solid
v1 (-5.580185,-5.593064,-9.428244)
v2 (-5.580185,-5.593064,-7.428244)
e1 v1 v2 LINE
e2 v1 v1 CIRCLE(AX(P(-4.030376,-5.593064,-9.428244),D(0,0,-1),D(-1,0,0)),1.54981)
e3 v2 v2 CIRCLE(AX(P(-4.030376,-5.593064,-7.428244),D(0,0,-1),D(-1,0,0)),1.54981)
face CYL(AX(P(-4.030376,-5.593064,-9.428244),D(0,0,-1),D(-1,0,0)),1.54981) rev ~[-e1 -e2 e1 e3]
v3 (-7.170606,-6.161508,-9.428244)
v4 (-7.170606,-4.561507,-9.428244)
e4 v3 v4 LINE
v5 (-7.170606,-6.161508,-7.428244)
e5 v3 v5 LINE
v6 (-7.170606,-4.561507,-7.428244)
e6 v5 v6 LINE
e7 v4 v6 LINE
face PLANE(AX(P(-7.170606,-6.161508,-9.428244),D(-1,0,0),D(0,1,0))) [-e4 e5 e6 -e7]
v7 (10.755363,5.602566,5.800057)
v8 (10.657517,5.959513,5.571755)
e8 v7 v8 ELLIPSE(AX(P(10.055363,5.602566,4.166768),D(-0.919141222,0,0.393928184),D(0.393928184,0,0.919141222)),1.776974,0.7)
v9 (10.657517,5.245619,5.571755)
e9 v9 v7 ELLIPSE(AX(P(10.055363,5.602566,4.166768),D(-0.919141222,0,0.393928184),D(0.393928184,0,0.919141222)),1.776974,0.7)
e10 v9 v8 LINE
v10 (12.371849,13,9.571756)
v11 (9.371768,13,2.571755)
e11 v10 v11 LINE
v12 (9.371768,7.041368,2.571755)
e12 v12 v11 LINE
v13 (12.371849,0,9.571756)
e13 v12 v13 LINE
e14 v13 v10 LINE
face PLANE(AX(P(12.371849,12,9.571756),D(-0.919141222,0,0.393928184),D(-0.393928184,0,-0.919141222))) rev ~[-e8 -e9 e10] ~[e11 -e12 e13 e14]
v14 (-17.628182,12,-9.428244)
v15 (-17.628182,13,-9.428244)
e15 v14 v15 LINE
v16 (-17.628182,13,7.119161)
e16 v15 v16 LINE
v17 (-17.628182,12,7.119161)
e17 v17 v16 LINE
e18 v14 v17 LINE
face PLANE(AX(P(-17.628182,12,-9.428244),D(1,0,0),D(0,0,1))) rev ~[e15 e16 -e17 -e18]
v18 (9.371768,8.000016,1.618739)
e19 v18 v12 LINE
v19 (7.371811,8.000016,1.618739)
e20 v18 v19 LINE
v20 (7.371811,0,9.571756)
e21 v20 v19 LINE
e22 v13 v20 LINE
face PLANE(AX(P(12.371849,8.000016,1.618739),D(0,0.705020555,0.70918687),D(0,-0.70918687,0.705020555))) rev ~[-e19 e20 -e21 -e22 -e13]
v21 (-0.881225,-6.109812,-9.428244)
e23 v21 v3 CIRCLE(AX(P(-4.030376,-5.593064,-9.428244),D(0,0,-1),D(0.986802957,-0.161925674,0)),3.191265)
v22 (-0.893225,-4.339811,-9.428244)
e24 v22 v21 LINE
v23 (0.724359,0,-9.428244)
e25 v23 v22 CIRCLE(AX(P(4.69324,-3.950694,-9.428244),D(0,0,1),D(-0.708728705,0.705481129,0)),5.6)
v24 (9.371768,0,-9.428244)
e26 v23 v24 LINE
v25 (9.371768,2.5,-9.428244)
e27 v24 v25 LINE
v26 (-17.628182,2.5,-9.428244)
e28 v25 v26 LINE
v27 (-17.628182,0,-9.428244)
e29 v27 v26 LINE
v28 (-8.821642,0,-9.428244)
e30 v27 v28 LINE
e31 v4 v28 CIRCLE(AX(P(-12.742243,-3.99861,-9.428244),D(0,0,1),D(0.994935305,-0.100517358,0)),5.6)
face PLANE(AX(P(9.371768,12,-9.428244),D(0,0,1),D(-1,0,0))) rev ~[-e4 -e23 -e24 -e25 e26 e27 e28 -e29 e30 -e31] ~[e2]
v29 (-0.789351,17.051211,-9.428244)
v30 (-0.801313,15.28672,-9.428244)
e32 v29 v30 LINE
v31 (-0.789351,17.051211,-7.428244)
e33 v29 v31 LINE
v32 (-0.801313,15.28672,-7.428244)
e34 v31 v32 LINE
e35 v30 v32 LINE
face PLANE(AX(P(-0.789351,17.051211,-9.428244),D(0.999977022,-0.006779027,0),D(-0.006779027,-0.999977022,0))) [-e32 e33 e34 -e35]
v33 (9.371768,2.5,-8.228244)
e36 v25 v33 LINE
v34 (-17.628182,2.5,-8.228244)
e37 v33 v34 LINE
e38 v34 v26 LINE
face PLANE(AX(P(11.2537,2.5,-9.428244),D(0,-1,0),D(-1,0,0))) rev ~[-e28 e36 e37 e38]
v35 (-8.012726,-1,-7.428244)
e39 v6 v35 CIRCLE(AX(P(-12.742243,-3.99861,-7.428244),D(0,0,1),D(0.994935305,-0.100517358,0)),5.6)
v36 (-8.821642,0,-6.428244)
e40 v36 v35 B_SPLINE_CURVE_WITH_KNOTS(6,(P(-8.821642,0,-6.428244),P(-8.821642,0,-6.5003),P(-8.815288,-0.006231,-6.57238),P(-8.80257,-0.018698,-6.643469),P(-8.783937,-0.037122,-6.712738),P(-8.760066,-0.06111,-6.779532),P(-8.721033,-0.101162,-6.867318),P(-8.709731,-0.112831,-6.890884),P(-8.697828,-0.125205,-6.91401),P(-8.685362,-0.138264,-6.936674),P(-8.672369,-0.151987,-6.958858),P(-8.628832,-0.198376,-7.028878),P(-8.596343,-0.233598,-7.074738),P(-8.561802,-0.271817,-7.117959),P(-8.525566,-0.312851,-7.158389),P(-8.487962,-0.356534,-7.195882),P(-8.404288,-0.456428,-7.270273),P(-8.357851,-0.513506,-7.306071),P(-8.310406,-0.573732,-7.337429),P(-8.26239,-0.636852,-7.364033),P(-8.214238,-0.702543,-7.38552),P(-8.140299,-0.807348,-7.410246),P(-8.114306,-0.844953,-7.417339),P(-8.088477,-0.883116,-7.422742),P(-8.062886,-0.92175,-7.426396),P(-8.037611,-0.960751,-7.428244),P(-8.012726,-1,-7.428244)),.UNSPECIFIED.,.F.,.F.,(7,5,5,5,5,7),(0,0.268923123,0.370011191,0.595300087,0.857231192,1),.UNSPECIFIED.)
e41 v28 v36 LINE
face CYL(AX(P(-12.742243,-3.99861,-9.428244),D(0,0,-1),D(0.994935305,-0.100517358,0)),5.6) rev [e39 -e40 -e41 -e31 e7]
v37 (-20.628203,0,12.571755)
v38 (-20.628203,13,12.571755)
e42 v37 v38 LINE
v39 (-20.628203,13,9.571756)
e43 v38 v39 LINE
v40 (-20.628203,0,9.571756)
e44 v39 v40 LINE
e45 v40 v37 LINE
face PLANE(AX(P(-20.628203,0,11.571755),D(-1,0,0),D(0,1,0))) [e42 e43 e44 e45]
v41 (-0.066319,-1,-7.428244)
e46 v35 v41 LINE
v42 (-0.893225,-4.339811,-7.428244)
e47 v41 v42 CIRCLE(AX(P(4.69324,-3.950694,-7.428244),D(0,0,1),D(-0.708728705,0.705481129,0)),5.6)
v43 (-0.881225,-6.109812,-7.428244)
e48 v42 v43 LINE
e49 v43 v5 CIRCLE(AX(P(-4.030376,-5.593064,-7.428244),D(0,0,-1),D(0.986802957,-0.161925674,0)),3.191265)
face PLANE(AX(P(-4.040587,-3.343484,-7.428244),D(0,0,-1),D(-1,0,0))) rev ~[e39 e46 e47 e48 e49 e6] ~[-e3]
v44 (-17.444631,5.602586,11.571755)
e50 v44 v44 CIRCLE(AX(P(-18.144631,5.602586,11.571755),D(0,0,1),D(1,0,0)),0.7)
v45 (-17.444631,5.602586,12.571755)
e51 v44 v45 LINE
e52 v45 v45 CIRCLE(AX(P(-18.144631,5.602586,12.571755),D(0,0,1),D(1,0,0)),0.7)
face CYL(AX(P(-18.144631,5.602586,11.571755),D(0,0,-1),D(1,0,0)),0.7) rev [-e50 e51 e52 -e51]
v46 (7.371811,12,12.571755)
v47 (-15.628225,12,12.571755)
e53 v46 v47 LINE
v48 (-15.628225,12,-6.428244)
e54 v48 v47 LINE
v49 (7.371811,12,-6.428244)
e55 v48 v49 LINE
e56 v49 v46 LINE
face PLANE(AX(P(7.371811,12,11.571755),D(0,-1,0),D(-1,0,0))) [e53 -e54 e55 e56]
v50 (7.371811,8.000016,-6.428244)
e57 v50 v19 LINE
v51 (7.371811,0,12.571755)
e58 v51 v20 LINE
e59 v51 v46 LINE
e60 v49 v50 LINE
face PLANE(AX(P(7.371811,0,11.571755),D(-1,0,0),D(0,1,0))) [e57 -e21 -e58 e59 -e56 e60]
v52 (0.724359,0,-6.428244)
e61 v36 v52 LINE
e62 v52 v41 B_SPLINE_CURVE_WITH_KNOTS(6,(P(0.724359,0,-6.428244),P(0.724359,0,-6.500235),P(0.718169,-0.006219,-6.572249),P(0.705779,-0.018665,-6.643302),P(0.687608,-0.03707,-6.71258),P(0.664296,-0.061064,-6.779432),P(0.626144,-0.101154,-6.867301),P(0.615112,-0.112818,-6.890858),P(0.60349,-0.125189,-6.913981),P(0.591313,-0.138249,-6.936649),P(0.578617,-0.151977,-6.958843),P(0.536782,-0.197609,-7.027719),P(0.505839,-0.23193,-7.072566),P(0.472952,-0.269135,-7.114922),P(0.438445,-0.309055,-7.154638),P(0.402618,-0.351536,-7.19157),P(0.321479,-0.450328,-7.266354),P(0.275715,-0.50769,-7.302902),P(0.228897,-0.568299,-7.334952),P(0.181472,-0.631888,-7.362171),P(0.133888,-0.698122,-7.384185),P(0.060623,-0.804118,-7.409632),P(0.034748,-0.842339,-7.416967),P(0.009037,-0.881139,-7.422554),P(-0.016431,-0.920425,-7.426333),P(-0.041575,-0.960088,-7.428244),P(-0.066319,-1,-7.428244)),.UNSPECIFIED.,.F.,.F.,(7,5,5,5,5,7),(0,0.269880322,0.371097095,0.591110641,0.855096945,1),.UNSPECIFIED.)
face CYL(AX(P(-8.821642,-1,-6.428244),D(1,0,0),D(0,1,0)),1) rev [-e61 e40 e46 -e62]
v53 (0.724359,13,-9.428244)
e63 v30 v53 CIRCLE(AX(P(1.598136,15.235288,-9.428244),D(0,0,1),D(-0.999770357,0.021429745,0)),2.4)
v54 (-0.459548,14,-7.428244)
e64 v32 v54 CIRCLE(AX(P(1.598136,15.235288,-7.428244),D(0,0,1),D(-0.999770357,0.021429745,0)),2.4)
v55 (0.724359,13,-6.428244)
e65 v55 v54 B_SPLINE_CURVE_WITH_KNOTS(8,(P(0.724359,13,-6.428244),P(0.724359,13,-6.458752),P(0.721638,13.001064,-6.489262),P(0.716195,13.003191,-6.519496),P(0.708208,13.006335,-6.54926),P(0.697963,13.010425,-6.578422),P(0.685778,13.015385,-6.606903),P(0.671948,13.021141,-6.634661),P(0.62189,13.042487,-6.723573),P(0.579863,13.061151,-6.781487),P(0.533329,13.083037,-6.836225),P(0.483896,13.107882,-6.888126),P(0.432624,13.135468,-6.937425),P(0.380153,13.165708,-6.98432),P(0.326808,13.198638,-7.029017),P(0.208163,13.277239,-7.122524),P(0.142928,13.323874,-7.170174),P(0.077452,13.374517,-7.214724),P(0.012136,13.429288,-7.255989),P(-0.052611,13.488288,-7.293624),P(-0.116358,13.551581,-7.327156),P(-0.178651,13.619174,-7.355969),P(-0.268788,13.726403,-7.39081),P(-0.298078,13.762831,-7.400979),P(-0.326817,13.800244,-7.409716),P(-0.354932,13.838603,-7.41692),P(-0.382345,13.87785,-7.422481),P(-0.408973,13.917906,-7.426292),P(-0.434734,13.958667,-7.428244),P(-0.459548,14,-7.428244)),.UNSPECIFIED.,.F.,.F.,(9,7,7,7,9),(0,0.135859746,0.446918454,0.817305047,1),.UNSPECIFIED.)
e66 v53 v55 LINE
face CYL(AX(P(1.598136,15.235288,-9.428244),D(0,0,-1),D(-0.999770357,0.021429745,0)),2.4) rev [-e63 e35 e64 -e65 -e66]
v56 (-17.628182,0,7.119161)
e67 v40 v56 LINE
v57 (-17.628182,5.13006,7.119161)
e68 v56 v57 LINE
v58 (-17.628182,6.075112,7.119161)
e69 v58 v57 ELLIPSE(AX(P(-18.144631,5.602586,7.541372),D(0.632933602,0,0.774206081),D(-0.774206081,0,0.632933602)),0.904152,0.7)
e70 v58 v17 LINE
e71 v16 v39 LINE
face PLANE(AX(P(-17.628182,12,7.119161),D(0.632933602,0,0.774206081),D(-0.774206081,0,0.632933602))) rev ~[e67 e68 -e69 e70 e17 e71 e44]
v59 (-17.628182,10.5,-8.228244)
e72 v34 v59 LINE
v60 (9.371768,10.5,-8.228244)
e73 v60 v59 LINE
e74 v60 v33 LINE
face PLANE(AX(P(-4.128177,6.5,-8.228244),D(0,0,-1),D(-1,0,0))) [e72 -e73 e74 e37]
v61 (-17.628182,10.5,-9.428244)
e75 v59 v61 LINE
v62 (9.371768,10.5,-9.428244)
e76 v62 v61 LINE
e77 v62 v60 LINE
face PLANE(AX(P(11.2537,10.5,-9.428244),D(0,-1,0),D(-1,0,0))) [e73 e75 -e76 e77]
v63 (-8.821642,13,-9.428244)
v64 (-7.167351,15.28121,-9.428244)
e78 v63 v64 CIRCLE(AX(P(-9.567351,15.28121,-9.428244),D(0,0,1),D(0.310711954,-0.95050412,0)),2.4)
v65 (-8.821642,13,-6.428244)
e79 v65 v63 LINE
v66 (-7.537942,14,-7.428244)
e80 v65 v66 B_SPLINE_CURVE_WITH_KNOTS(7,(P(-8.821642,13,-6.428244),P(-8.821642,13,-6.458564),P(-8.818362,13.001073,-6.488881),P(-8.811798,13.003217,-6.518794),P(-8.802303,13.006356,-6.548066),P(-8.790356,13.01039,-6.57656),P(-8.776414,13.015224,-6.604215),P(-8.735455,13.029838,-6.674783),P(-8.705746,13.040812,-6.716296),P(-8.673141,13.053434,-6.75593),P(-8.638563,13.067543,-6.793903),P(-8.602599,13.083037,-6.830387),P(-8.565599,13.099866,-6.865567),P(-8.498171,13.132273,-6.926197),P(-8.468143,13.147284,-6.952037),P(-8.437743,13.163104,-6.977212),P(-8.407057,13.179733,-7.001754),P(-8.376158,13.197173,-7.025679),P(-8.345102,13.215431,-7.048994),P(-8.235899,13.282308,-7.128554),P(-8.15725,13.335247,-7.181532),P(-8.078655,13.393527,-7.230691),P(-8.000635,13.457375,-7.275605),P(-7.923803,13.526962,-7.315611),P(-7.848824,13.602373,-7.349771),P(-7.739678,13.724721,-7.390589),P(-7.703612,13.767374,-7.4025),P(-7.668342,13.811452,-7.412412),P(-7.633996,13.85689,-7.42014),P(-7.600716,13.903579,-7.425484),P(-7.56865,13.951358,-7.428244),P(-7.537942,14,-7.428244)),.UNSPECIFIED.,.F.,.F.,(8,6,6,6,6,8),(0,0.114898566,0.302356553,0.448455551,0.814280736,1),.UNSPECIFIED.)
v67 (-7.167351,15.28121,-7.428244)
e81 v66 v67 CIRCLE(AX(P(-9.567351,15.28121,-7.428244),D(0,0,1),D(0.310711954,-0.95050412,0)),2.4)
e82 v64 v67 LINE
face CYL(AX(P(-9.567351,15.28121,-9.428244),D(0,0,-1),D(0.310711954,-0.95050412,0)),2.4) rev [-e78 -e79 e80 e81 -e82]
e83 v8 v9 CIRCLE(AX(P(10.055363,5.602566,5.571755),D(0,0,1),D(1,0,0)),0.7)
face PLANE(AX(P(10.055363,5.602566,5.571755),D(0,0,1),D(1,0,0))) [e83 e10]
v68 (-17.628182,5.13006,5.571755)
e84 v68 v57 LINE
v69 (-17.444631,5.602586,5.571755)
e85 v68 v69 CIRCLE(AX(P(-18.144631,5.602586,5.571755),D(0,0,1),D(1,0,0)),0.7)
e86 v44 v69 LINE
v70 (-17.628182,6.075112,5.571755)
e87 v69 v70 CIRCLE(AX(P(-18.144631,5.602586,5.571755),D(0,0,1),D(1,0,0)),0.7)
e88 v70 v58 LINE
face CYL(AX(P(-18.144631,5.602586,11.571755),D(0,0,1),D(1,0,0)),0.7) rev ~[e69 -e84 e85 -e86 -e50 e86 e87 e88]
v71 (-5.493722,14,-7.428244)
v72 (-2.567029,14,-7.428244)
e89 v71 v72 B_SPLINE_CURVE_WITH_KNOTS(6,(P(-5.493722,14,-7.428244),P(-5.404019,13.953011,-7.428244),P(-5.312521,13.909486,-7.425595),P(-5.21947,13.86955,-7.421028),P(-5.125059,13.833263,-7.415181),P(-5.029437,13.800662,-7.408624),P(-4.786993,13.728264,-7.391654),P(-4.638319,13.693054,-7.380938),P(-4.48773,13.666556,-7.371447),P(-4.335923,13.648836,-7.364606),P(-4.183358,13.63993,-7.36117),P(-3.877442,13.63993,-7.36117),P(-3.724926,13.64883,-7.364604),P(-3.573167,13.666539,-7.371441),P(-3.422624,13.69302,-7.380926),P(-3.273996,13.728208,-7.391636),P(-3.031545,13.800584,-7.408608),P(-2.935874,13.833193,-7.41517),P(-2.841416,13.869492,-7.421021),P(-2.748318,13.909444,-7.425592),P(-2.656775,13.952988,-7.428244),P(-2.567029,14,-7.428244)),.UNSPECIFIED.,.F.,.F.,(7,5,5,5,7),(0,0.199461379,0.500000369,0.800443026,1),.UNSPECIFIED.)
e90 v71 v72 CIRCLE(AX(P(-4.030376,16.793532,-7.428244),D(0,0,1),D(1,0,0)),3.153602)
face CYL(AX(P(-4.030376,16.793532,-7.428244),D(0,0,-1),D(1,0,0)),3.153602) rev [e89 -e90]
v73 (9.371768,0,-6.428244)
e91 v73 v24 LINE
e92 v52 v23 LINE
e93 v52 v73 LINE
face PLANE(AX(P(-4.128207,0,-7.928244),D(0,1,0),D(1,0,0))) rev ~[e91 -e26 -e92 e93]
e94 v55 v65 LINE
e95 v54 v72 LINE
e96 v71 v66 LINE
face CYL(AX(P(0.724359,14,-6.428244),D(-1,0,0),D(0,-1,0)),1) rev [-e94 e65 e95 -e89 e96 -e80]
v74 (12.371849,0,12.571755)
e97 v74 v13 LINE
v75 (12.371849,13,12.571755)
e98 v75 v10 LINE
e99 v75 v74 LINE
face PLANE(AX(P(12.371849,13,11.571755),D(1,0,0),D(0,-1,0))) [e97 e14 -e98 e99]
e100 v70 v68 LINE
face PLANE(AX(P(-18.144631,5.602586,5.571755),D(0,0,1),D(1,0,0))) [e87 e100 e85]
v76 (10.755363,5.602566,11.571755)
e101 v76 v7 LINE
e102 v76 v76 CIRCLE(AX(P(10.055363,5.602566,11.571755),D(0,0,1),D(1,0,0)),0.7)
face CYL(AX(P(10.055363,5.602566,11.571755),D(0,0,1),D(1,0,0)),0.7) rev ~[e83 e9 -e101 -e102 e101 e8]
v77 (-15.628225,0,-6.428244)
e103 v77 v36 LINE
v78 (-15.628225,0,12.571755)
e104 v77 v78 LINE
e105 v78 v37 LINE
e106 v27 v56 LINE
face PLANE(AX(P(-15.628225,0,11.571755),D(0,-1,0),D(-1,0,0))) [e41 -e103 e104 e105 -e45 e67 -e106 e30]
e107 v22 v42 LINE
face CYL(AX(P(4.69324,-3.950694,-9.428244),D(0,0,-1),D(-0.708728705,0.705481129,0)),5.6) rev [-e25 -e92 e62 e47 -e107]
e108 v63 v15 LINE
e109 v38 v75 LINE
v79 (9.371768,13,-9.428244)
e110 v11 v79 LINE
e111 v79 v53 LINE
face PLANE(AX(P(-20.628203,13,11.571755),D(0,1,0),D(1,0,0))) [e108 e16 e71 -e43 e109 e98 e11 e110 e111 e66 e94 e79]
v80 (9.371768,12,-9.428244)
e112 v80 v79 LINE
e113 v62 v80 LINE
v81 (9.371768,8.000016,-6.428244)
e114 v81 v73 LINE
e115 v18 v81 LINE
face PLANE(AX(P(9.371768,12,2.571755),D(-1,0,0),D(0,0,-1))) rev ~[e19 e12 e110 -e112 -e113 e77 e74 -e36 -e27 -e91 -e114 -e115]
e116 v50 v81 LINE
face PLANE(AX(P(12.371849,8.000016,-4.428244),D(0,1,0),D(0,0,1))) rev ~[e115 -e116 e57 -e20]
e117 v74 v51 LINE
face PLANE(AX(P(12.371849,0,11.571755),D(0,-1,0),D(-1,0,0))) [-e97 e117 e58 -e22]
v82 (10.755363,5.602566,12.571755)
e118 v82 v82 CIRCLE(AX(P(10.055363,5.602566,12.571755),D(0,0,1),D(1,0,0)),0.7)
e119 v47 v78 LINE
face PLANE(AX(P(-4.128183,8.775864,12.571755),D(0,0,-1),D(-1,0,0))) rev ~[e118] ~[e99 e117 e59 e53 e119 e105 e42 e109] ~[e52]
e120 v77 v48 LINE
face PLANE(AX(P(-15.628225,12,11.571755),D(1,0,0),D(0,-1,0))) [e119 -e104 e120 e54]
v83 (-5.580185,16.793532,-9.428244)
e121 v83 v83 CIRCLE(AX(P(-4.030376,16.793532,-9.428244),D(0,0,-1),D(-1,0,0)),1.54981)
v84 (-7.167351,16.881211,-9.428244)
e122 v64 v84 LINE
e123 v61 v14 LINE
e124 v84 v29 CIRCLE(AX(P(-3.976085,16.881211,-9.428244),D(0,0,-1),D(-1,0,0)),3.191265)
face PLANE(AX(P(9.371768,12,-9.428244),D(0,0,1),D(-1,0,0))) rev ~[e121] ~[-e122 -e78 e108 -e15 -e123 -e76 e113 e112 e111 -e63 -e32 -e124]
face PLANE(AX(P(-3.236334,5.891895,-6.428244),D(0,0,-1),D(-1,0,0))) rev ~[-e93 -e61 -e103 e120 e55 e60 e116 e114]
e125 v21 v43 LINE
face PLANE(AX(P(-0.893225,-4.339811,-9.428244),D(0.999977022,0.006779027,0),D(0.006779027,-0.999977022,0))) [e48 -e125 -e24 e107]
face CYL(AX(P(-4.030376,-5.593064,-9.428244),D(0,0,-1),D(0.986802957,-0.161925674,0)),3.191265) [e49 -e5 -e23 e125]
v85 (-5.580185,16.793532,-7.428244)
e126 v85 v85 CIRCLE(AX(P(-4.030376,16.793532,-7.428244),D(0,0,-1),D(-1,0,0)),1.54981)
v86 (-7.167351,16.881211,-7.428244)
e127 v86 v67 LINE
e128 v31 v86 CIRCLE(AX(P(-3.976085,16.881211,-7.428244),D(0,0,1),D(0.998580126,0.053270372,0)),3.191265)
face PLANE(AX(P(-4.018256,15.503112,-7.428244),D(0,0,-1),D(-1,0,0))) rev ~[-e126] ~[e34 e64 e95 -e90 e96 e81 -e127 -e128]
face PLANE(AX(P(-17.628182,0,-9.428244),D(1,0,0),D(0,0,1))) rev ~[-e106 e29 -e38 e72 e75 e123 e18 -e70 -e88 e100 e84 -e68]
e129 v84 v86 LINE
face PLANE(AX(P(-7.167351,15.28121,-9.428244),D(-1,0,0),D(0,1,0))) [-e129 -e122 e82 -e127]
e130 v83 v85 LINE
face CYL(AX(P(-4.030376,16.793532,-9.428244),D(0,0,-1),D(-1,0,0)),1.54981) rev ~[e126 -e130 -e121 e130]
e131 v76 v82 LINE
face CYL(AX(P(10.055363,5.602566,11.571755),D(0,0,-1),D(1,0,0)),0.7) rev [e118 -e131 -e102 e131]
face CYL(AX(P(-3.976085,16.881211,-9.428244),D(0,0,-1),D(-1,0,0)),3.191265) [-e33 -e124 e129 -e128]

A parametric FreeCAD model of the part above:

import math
import FreeCAD as App
import Part
import Sketcher
from FreeCAD import Vector
Q = App.Units.Quantity


def edges_at(feature, points):
    """Names of the edges that pass closest to the given points."""
    edges = feature.Shape.Edges
    near = lambda p: min(range(len(edges)), key=lambda i: edges[i].distToShape(Part.Vertex(*p))[0])
    return sorted({f"Edge{near(p) + 1}" for p in points})

doc = App.newDocument("Part")
body = doc.addObject("PartDesign::Body", "Body")

# Sketch on XZ plane
sketch1 = body.newObject("Sketcher::SketchObject", "Sketch")
sketch1.AttachmentSupport = (doc.getObject("XZ_Plane"), [""])
sketch1.MapMode = "FlatFace"
sketch1.addGeometry(Part.LineSegment(Vector(-17.628182, -9.428244, 0), Vector(-17.628182, 7.119161, 0)), False)
sketch1.addGeometry(Part.LineSegment(Vector(-17.628182, 7.119161, 0), Vector(-20.628203, 9.571756, 0)), False)
sketch1.addGeometry(Part.LineSegment(Vector(-20.628203, 9.571756, 0), Vector(-20.628203, 11.571755, 0)), False)
sketch1.addGeometry(Part.LineSegment(Vector(-20.628203, 11.571755, 0), Vector(-15.628225, 11.571755, 0)), False)
sketch1.addGeometry(Part.LineSegment(Vector(-15.628225, 11.571755, 0), Vector(-15.628225, -4.428244, 0)), False)
sketch1.addGeometry(Part.LineSegment(Vector(-15.628225, -4.428244, 0), Vector(7.371811, -4.428244, 0)), False)
sketch1.addGeometry(Part.LineSegment(Vector(7.371811, -4.428244, 0), Vector(7.371811, 11.571755, 0)), False)
sketch1.addGeometry(Part.LineSegment(Vector(7.371811, 11.571755, 0), Vector(12.371849, 11.571755, 0)), False)
sketch1.addGeometry(Part.LineSegment(Vector(12.371849, 11.571755, 0), Vector(12.371849, 9.571756, 0)), False)
sketch1.addGeometry(Part.LineSegment(Vector(12.371849, 9.571756, 0), Vector(9.371768, 2.571755, 0)), False)
sketch1.addGeometry(Part.LineSegment(Vector(9.371768, 2.571755, 0), Vector(9.371768, -6.428244, 0)), False)
sketch1.addGeometry(Part.LineSegment(Vector(9.371768, -6.428244, 0), Vector(9.371768, -9.428244, 0)), False)
sketch1.addGeometry(Part.LineSegment(Vector(9.371768, -9.428244, 0), Vector(-17.628182, -9.428244, 0)), False)
sketch1.addConstraint(Sketcher.Constraint("Coincident", 0, 2, 1, 1))
sketch1.addConstraint(Sketcher.Constraint("Coincident", 1, 2, 2, 1))
sketch1.addConstraint(Sketcher.Constraint("Coincident", 2, 2, 3, 1))
sketch1.addConstraint(Sketcher.Constraint("Coincident", 3, 2, 4, 1))
sketch1.addConstraint(Sketcher.Constraint("Coincident", 4, 2, 5, 1))
sketch1.addConstraint(Sketcher.Constraint("Coincident", 5, 2, 6, 1))
sketch1.addConstraint(Sketcher.Constraint("Coincident", 6, 2, 7, 1))
sketch1.addConstraint(Sketcher.Constraint("Coincident", 7, 2, 8, 1))
sketch1.addConstraint(Sketcher.Constraint("Coincident", 8, 2, 9, 1))
sketch1.addConstraint(Sketcher.Constraint("Coincident", 9, 2, 10, 1))
sketch1.addConstraint(Sketcher.Constraint("Coincident", 10, 2, 11, 1))
sketch1.addConstraint(Sketcher.Constraint("Coincident", 11, 2, 12, 1))
sketch1.addConstraint(Sketcher.Constraint("Coincident", 12, 2, 0, 1))
sketch1.addConstraint(Sketcher.Constraint("Vertical", 0))
sketch1.addConstraint(Sketcher.Constraint("Vertical", 2))
sketch1.addConstraint(Sketcher.Constraint("Horizontal", 3))
sketch1.addConstraint(Sketcher.Constraint("Vertical", 4))
sketch1.addConstraint(Sketcher.Constraint("Horizontal", 5))
sketch1.addConstraint(Sketcher.Constraint("Vertical", 6))
sketch1.addConstraint(Sketcher.Constraint("Horizontal", 7))
sketch1.addConstraint(Sketcher.Constraint("Vertical", 8))
sketch1.addConstraint(Sketcher.Constraint("Vertical", 10))
sketch1.addConstraint(Sketcher.Constraint("Vertical", 11))
sketch1.addConstraint(Sketcher.Constraint("Horizontal", 12))
sketch1.addConstraint(Sketcher.Constraint("Horizontal", 3, 2, 6, 2))
sketch1.addConstraint(Sketcher.Constraint("Horizontal", 1, 2, 8, 2))
sketch1.addConstraint(Sketcher.Constraint("DistanceY", 2, 1, 2, 2, Q("1.999998 mm")))
sketch1.addConstraint(Sketcher.Constraint("DistanceY", 4, 2, 4, 1, Q("15.999999 mm")))
sketch1.addConstraint(Sketcher.Constraint("DistanceY", 10, 2, 10, 1, Q("9 mm")))
sketch1.addConstraint(Sketcher.Constraint("DistanceY", 11, 2, 11, 1, Q("3 mm")))
sketch1.addConstraint(Sketcher.Constraint("DistanceY", 5, 2, 9, 2, Q("7 mm")))
sketch1.addConstraint(Sketcher.Constraint("DistanceX", 3, 1, 3, 2, Q("4.999979 mm")))
sketch1.addConstraint(Sketcher.Constraint("DistanceX", 7, 1, 7, 2, Q("5.000038 mm")))
sketch1.addConstraint(Sketcher.Constraint("DistanceX", 12, 2, 12, 1, Q("26.99995 mm")))
sketch1.addConstraint(Sketcher.Constraint("DistanceX", 5, 1, 5, 2, Q("23.000035 mm")))
sketch1.addConstraint(Sketcher.Constraint("DistanceY", 0, 1, 0, 2, Q("16.547406 mm")))
sketch1.addConstraint(Sketcher.Constraint("DistanceY", -1, 1, 0, 2, Q("7.119161 mm")))
sketch1.addConstraint(Sketcher.Constraint("DistanceX", -1, 1, 5, 2, Q("7.371811 mm")))
sketch1.addConstraint(Sketcher.Constraint("DistanceX", -1, 1, 9, 2, Q("9.371768 mm")))
pad1 = body.newObject("PartDesign::Pad", "Pad")
pad1.Profile = sketch1
pad1.Length = 12
pad1.Reversed = True

# Sketch on YZ plane
sketch2 = body.newObject("Sketcher::SketchObject", "Sketch001")
sketch2.AttachmentSupport = (doc.getObject("YZ_Plane"), [""])
sketch2.MapMode = "FlatFace"
sketch2.AttachmentOffset = App.Placement(Vector(0, 0, 12.371849), App.Rotation())
sketch2.addGeometry(Part.LineSegment(Vector(0, -4.428244, 0), Vector(8.000016, -4.428244, 0)), False)
sketch2.addGeometry(Part.LineSegment(Vector(8.000016, -4.428244, 0), Vector(8.000016, 1.618739, 0)), False)
sketch2.addGeometry(Part.LineSegment(Vector(8.000016, 1.618739, 0), Vector(0, 9.571756, 0)), False)
sketch2.addGeometry(Part.LineSegment(Vector(0, 9.571756, 0), Vector(0, -4.428244, 0)), False)
sketch2.addConstraint(Sketcher.Constraint("Coincident", 0, 2, 1, 1))
sketch2.addConstraint(Sketcher.Constraint("Coincident", 1, 2, 2, 1))
sketch2.addConstraint(Sketcher.Constraint("Coincident", 2, 2, 3, 1))
sketch2.addConstraint(Sketcher.Constraint("Coincident", 3, 2, 0, 1))
sketch2.addConstraint(Sketcher.Constraint("Horizontal", 0))
sketch2.addConstraint(Sketcher.Constraint("Vertical", 1))
sketch2.addConstraint(Sketcher.Constraint("Vertical", 3))
sketch2.addConstraint(Sketcher.Constraint("PointOnObject", 2, 2, -2))
sketch2.addConstraint(Sketcher.Constraint("DistanceY", 3, 2, 3, 1, Q("14.000001 mm")))
sketch2.addConstraint(Sketcher.Constraint("DistanceX", 0, 1, 0, 2, Q("8.000016 mm")))
sketch2.addConstraint(Sketcher.Constraint("DistanceY", 1, 1, 1, 2, Q("6.046983 mm")))
sketch2.addConstraint(Sketcher.Constraint("DistanceY", -1, 1, 1, 2, Q("1.618739 mm")))
pocket1 = body.newObject("PartDesign::Pocket", "Pocket")
pocket1.Profile = sketch2
pocket1.Length = 11.5

# Sketch on XZ plane
sketch3 = body.newObject("Sketcher::SketchObject", "Sketch002")
sketch3.AttachmentSupport = (doc.getObject("XZ_Plane"), [""])
sketch3.MapMode = "FlatFace"
sketch3.AttachmentOffset = App.Placement(Vector(0, 0, -12), App.Rotation())
sketch3.addGeometry(Part.LineSegment(Vector(-20.628203, 9.571756, 0), Vector(-20.628203, 11.571755, 0)), False)
sketch3.addGeometry(Part.LineSegment(Vector(-20.628203, 11.571755, 0), Vector(12.371849, 11.571755, 0)), False)
sketch3.addGeometry(Part.LineSegment(Vector(12.371849, 11.571755, 0), Vector(12.371849, 9.571756, 0)), False)
sketch3.addGeometry(Part.LineSegment(Vector(12.371849, 9.571756, 0), Vector(9.371768, 2.571755, 0)), False)
sketch3.addGeometry(Part.LineSegment(Vector(9.371768, 2.571755, 0), Vector(9.371768, -9.428244, 0)), False)
sketch3.addGeometry(Part.LineSegment(Vector(9.371768, -9.428244, 0), Vector(-17.628182, -9.428244, 0)), False)
sketch3.addGeometry(Part.LineSegment(Vector(-17.628182, -9.428244, 0), Vector(-17.628182, 7.119161, 0)), False)
sketch3.addGeometry(Part.LineSegment(Vector(-17.628182, 7.119161, 0), Vector(-20.628203, 9.571756, 0)), False)
sketch3.addConstraint(Sketcher.Constraint("Coincident", 0, 2, 1, 1))
sketch3.addConstraint(Sketcher.Constraint("Coincident", 1, 2, 2, 1))
sketch3.addConstraint(Sketcher.Constraint("Coincident", 2, 2, 3, 1))
sketch3.addConstraint(Sketcher.Constraint("Coincident", 3, 2, 4, 1))
sketch3.addConstraint(Sketcher.Constraint("Coincident", 4, 2, 5, 1))
sketch3.addConstraint(Sketcher.Constraint("Coincident", 5, 2, 6, 1))
sketch3.addConstraint(Sketcher.Constraint("Coincident", 6, 2, 7, 1))
sketch3.addConstraint(Sketcher.Constraint("Coincident", 7, 2, 0, 1))
sketch3.addConstraint(Sketcher.Constraint("Vertical", 0))
sketch3.addConstraint(Sketcher.Constraint("Horizontal", 1))
sketch3.addConstraint(Sketcher.Constraint("Vertical", 2))
sketch3.addConstraint(Sketcher.Constraint("Vertical", 4))
sketch3.addConstraint(Sketcher.Constraint("Horizontal", 5))
sketch3.addConstraint(Sketcher.Constraint("Vertical", 6))
sketch3.addConstraint(Sketcher.Constraint("Horizontal", 2, 2, 7, 2))
sketch3.addConstraint(Sketcher.Constraint("DistanceY", 0, 1, 0, 2, Q("1.999998 mm")))
sketch3.addConstraint(Sketcher.Constraint("DistanceY", 4, 2, 4, 1, Q("12 mm")))
sketch3.addConstraint(Sketcher.Constraint("DistanceY", 3, 2, 2, 2, Q("7.000001 mm")))
sketch3.addConstraint(Sketcher.Constraint("DistanceX", 1, 1, 1, 2, Q("33.000052 mm")))
sketch3.addConstraint(Sketcher.Constraint("DistanceX", 5, 2, 5, 1, Q("26.99995 mm")))
sketch3.addConstraint(Sketcher.Constraint("DistanceY", 6, 1, 6, 2, Q("16.547406 mm")))
sketch3.addConstraint(Sketcher.Constraint("DistanceX", -1, 1, 1, 2, Q("12.371849 mm")))
sketch3.addConstraint(Sketcher.Constraint("DistanceX", -1, 1, 3, 2, Q("9.371768 mm")))
sketch3.addConstraint(Sketcher.Constraint("DistanceY", -1, 1, 6, 2, Q("7.119161 mm")))
pad2 = body.newObject("PartDesign::Pad", "Pad001")
pad2.Profile = sketch3
pad2.Length = 1
pad2.Reversed = True

# Sketch on XY plane
sketch4 = body.newObject("Sketcher::SketchObject", "Sketch003")
sketch4.AttachmentSupport = (doc.getObject("XY_Plane"), [""])
sketch4.MapMode = "FlatFace"
sketch4.AttachmentOffset = App.Placement(Vector(0, 0, 11.571755), App.Rotation())
sketch4.addGeometry(Part.Circle(Vector(-18.144631, 5.602586, 0), Vector(0, 0, 1), 0.7), False)
sketch4.addGeometry(Part.Circle(Vector(10.055363, 5.602566, 0), Vector(0, 0, 1), 0.7), False)
sketch4.addConstraint(Sketcher.Constraint("Equal", 0, 1))
sketch4.addConstraint(Sketcher.Constraint("Diameter", 0, Q("1.4 mm")))
sketch4.addConstraint(Sketcher.Constraint("DistanceX", 0, 3, -1, 1, Q("18.144631 mm")))
sketch4.addConstraint(Sketcher.Constraint("DistanceY", -1, 1, 0, 3, Q("5.602586 mm")))
sketch4.addConstraint(Sketcher.Constraint("DistanceX", -1, 1, 1, 3, Q("10.055363 mm")))
sketch4.addConstraint(Sketcher.Constraint("DistanceY", -1, 1, 1, 3, Q("5.602566 mm")))
pocket2 = body.newObject("PartDesign::Pocket", "Pocket001")
pocket2.Profile = sketch4
pocket2.Length = 6

# Sketch on XY plane
sketch5 = body.newObject("Sketcher::SketchObject", "Sketch004")
sketch5.AttachmentSupport = (doc.getObject("XY_Plane"), [""])
sketch5.MapMode = "FlatFace"
sketch5.AttachmentOffset = App.Placement(Vector(0, 0, -9.428244), App.Rotation())
sketch5.addGeometry(Part.ArcOfCircle(Part.Circle(Vector(-3.976085, 16.881211, 0), Vector(0, 0, 1), 3.191265), math.radians(3.053613), math.radians(180)), False)
sketch5.addGeometry(Part.LineSegment(Vector(-0.789351, 17.051211, 0), Vector(-0.801313, 15.28672, 0)), False)
sketch5.addGeometry(Part.ArcOfCircle(Part.Circle(Vector(1.598136, 15.235288, 0), Vector(0, 0, 1), 2.4), math.radians(178.772072), math.radians(248.64942)), False)
sketch5.addGeometry(Part.LineSegment(Vector(0.724359, 13, 0), Vector(-8.821642, 13, 0)), False)
sketch5.addGeometry(Part.ArcOfCircle(Part.Circle(Vector(-9.567351, 15.28121, 0), Vector(0, 0, 1), 2.4), math.radians(-71.897859), math.radians(0)), False)
sketch5.addGeometry(Part.LineSegment(Vector(-7.167351, 15.28121, 0), Vector(-7.167351, 16.881211, 0)), False)
sketch5.addGeometry(Part.Circle(Vector(-4.030376, 16.793532, 0), Vector(0, 0, 1), 1.54981), False)
sketch5.addGeometry(Part.LineSegment(Vector(-8.821642, 0, 0), Vector(0.724359, 0, 0)), False)
sketch5.addGeometry(Part.ArcOfCircle(Part.Circle(Vector(4.69324, -3.950694, 0), Vector(0, 0, 1), 5.6), math.radians(135.131573), math.radians(183.984413)), False)
sketch5.addGeometry(Part.LineSegment(Vector(-0.893225, -4.339811, 0), Vector(-0.881225, -6.109812, 0)), False)
sketch5.addGeometry(Part.ArcOfCircle(Part.Circle(Vector(-4.030376, -5.593064, 0), Vector(0, 0, 1), 3.191265), math.radians(-169.739428), math.radians(-9.318687)), False)
sketch5.addGeometry(Part.LineSegment(Vector(-7.170606, -6.161508, 0), Vector(-7.170606, -4.561507, 0)), False)
sketch5.addGeometry(Part.ArcOfCircle(Part.Circle(Vector(-12.742243, -3.99861, 0), Vector(0, 0, 1), 5.6), math.radians(-5.768963), math.radians(45.564378)), False)
sketch5.addGeometry(Part.Circle(Vector(-4.030376, -5.593064, 0), Vector(0, 0, 1), 1.54981), False)
sketch5.addConstraint(Sketcher.Constraint("Coincident", 0, 1, 1, 1))
sketch5.addConstraint(Sketcher.Constraint("Coincident", 1, 2, 2, 1))
sketch5.addConstraint(Sketcher.Constraint("Coincident", 2, 2, 3, 1))
sketch5.addConstraint(Sketcher.Constraint("Coincident", 3, 2, 4, 1))
sketch5.addConstraint(Sketcher.Constraint("Tangent", 4, 2, 5, 1))
sketch5.addConstraint(Sketcher.Constraint("Tangent", 5, 2, 0, 2))
sketch5.addConstraint(Sketcher.Constraint("Coincident", 7, 2, 8, 1))
sketch5.addConstraint(Sketcher.Constraint("Coincident", 8, 2, 9, 1))
sketch5.addConstraint(Sketcher.Constraint("Coincident", 9, 2, 10, 2))
sketch5.addConstraint(Sketcher.Constraint("Coincident", 10, 1, 11, 1))
sketch5.addConstraint(Sketcher.Constraint("Coincident", 11, 2, 12, 1))
sketch5.addConstraint(Sketcher.Constraint("Coincident", 12, 2, 7, 1))
sketch5.addConstraint(Sketcher.Constraint("Horizontal", 3))
sketch5.addConstraint(Sketcher.Constraint("Vertical", 5))
sketch5.addConstraint(Sketcher.Constraint("Horizontal", 7))
sketch5.addConstraint(Sketcher.Constraint("Vertical", 11))
sketch5.addConstraint(Sketcher.Constraint("Coincident", 13, 3, 10, 3))
sketch5.addConstraint(Sketcher.Constraint("Equal", 2, 4))
sketch5.addConstraint(Sketcher.Constraint("Equal", 0, 10))
sketch5.addConstraint(Sketcher.Constraint("Equal", 8, 12))
sketch5.addConstraint(Sketcher.Constraint("Equal", 6, 13))
sketch5.addConstraint(Sketcher.Constraint("PointOnObject", 7, 2, -1))
sketch5.addConstraint(Sketcher.Constraint("Vertical", 6, 3, 10, 3))
sketch5.addConstraint(Sketcher.Constraint("Vertical", 2, 2, 7, 2))
sketch5.addConstraint(Sketcher.Constraint("Vertical", 3, 2, 12, 2))
sketch5.addConstraint(Sketcher.Constraint("Equal", 5, 11))
sketch5.addConstraint(Sketcher.Constraint("Radius", 2, Q("2.4 mm")))
sketch5.addConstraint(Sketcher.Constraint("Radius", 8, Q("5.6 mm")))
sketch5.addConstraint(Sketcher.Constraint("DistanceY", 5, 1, 5, 2, Q("1.600001 mm")))
sketch5.addConstraint(Sketcher.Constraint("DistanceY", -1, 1, 2, 2, Q("13 mm")))
sketch5.addConstraint(Sketcher.Constraint("Diameter", 6, Q("3.09962 mm")))
sketch5.addConstraint(Sketcher.Constraint("DistanceX", 3, 2, 3, 1, Q("9.546001 mm")))
sketch5.addConstraint(Sketcher.Constraint("DistanceY", 0, 3, 0, 1, Q("0.17 mm")))
sketch5.addConstraint(Sketcher.Constraint("DistanceY", 9, 2, 8, 2, Q("1.770001 mm")))
sketch5.addConstraint(Sketcher.Constraint("Radius", 0, Q("3.191265 mm")))
sketch5.addConstraint(Sketcher.Constraint("DistanceX", 8, 2, 9, 2, Q("0.011999 mm")))
sketch5.addConstraint(Sketcher.Constraint("DistanceY", 8, 2, 12, 3, Q("0.341201 mm")))
sketch5.addConstraint(Sketcher.Constraint("DistanceY", 10, 1, 12, 3, Q("2.162898 mm")))
sketch5.addConstraint(Sketcher.Constraint("DistanceX", 12, 3, 12, 2, Q("3.920601 mm")))
sketch5.addConstraint(Sketcher.Constraint("Distance", 1, Q("1.764531 mm")))
sketch5.addConstraint(Sketcher.Constraint("DistanceY", -1, 1, 0, 3, Q("16.881211 mm")))
sketch5.addConstraint(Sketcher.Constraint("DistanceY", -1, 1, 2, 3, Q("15.235288 mm")))
sketch5.addConstraint(Sketcher.Constraint("DistanceX", 4, 3, -1, 1, Q("9.567351 mm")))
sketch5.addConstraint(Sketcher.Constraint("DistanceX", -1, 1, 8, 3, Q("4.69324 mm")))
sketch5.addConstraint(Sketcher.Constraint("DistanceY", 6, 3, 0, 3, Q("0.087679 mm")))
pad3 = body.newObject("PartDesign::Pad", "Pad002")
pad3.Profile = sketch5
pad3.Length = 2

# Sketch on XY plane
sketch6 = body.newObject("Sketcher::SketchObject", "Sketch005")
sketch6.AttachmentSupport = (doc.getObject("XY_Plane"), [""])
sketch6.MapMode = "FlatFace"
sketch6.AttachmentOffset = App.Placement(Vector(0, 0, -9.428244), App.Rotation())
sketch6.addGeometry(Part.LineSegment(Vector(11.2537, 10.5, 0), Vector(11.2537, 2.5, 0)), False)
sketch6.addGeometry(Part.LineSegment(Vector(11.2537, 2.5, 0), Vector(-19.510054, 2.5, 0)), False)
sketch6.addGeometry(Part.LineSegment(Vector(-19.510054, 2.5, 0), Vector(-19.510054, 10.5, 0)), False)
sketch6.addGeometry(Part.LineSegment(Vector(-19.510054, 10.5, 0), Vector(11.2537, 10.5, 0)), False)
sketch6.addConstraint(Sketcher.Constraint("Coincident", 0, 2, 1, 1))
sketch6.addConstraint(Sketcher.Constraint("Coincident", 1, 2, 2, 1))
sketch6.addConstraint(Sketcher.Constraint("Coincident", 2, 2, 3, 1))
sketch6.addConstraint(Sketcher.Constraint("Coincident", 3, 2, 0, 1))
sketch6.addConstraint(Sketcher.Constraint("Vertical", 0))
sketch6.addConstraint(Sketcher.Constraint("Horizontal", 1))
sketch6.addConstraint(Sketcher.Constraint("Vertical", 2))
sketch6.addConstraint(Sketcher.Constraint("Horizontal", 3))
sketch6.addConstraint(Sketcher.Constraint("DistanceY", 0, 2, 0, 1, Q("8 mm")))
sketch6.addConstraint(Sketcher.Constraint("DistanceY", -1, 1, 0, 2, Q("2.5 mm")))
sketch6.addConstraint(Sketcher.Constraint("DistanceX", -1, 1, 0, 2, Q("11.2537 mm")))
sketch6.addConstraint(Sketcher.Constraint("DistanceX", 1, 2, 1, 1, Q("30.763754 mm")))
pocket3 = body.newObject("PartDesign::Pocket", "Pocket002")
pocket3.Profile = sketch6
pocket3.Length = 1.2
pocket3.Reversed = True
doc.recompute()

fillet = body.newObject("PartDesign::Fillet", "Fillet")
fillet.Base = (pocket3, edges_at(pocket3, [(-4.049, 13, -7.428), (-4.049, 0, -7.428)]))
fillet.Radius = 1

# Sketch on XY plane
sketch7 = body.newObject("Sketcher::SketchObject", "Sketch006")
sketch7.AttachmentSupport = (doc.getObject("XY_Plane"), [""])
sketch7.MapMode = "FlatFace"
sketch7.AttachmentOffset = App.Placement(Vector(0, 0, -7.428244), App.Rotation())
sketch7.addGeometry(Part.Circle(Vector(-4.030376, 16.793532, 0), Vector(0, 0, 1), 3.153602), False)
sketch7.addConstraint(Sketcher.Constraint("Diameter", 0, Q("6.307204 mm")))
sketch7.addConstraint(Sketcher.Constraint("DistanceX", 0, 3, -1, 1, Q("4.030376 mm")))
sketch7.addConstraint(Sketcher.Constraint("DistanceY", -1, 1, 0, 3, Q("16.793532 mm")))
pocket4 = body.newObject("PartDesign::Pocket", "Pocket003")
pocket4.Profile = sketch7
pocket4.Length = 10
pocket4.Reversed = True

# Sketch on XY plane
sketch8 = body.newObject("Sketcher::SketchObject", "Sketch007")
sketch8.AttachmentSupport = (doc.getObject("XY_Plane"), [""])
sketch8.MapMode = "FlatFace"
sketch8.AttachmentOffset = App.Placement(Vector(0, 0, -4.428244), App.Rotation())
sketch8.addGeometry(Part.LineSegment(Vector(-15.628225, 12, 0), Vector(-15.628225, 0, 0)), False)
sketch8.addGeometry(Part.LineSegment(Vector(-15.628225, 0, 0), Vector(9.371768, 0, 0)), False)
sketch8.addGeometry(Part.LineSegment(Vector(9.371768, 0, 0), Vector(9.371768, 8.000016, 0)), False)
sketch8.addGeometry(Part.LineSegment(Vector(9.371768, 8.000016, 0), Vector(7.371811, 8.000016, 0)), False)
sketch8.addGeometry(Part.LineSegment(Vector(7.371811, 8.000016, 0), Vector(7.371811, 12, 0)), False)
sketch8.addGeometry(Part.LineSegment(Vector(7.371811, 12, 0), Vector(-15.628225, 12, 0)), False)
sketch8.addConstraint(Sketcher.Constraint("Coincident", 0, 2, 1, 1))
sketch8.addConstraint(Sketcher.Constraint("Coincident", 1, 2, 2, 1))
sketch8.addConstraint(Sketcher.Constraint("Coincident", 2, 2, 3, 1))
sketch8.addConstraint(Sketcher.Constraint("Coincident", 3, 2, 4, 1))
sketch8.addConstraint(Sketcher.Constraint("Coincident", 4, 2, 5, 1))
sketch8.addConstraint(Sketcher.Constraint("Coincident", 5, 2, 0, 1))
sketch8.addConstraint(Sketcher.Constraint("Vertical", 0))
sketch8.addConstraint(Sketcher.Constraint("Horizontal", 1))
sketch8.addConstraint(Sketcher.Constraint("Vertical", 2))
sketch8.addConstraint(Sketcher.Constraint("Horizontal", 3))
sketch8.addConstraint(Sketcher.Constraint("Vertical", 4))
sketch8.addConstraint(Sketcher.Constraint("Horizontal", 5))
sketch8.addConstraint(Sketcher.Constraint("PointOnObject", 0, 2, -1))
sketch8.addConstraint(Sketcher.Constraint("DistanceY", 0, 2, 0, 1, Q("12 mm")))
sketch8.addConstraint(Sketcher.Constraint("DistanceX", 1, 1, 1, 2, Q("24.999993 mm")))
sketch8.addConstraint(Sketcher.Constraint("DistanceX", 3, 2, 3, 1, Q("1.999958 mm")))
sketch8.addConstraint(Sketcher.Constraint("DistanceY", 2, 1, 2, 2, Q("8.000016 mm")))
sketch8.addConstraint(Sketcher.Constraint("DistanceX", -1, 1, 1, 2, Q("9.371768 mm")))
pocket5 = body.newObject("PartDesign::Pocket", "Pocket004")
pocket5.Profile = sketch8
pocket5.Length = 2

# Sketch on XY plane
sketch9 = body.newObject("Sketcher::SketchObject", "Sketch008")
sketch9.AttachmentSupport = (doc.getObject("XY_Plane"), [""])
sketch9.MapMode = "FlatFace"
sketch9.AttachmentOffset = App.Placement(Vector(0, 0, 11.571755), App.Rotation())
sketch9.addGeometry(Part.LineSegment(Vector(-20.628203, 13, 0), Vector(-20.628203, 0, 0)), False)
sketch9.addGeometry(Part.LineSegment(Vector(-20.628203, 0, 0), Vector(-15.628225, 0, 0)), False)
sketch9.addGeometry(Part.LineSegment(Vector(-15.628225, 0, 0), Vector(-15.628225, 12, 0)), False)
sketch9.addGeometry(Part.LineSegment(Vector(-15.628225, 12, 0), Vector(7.371811, 12, 0)), False)
sketch9.addGeometry(Part.LineSegment(Vector(7.371811, 12, 0), Vector(7.371811, 0, 0)), False)
sketch9.addGeometry(Part.LineSegment(Vector(7.371811, 0, 0), Vector(12.371849, 0, 0)), False)
sketch9.addGeometry(Part.LineSegment(Vector(12.371849, 0, 0), Vector(12.371849, 13, 0)), False)
sketch9.addGeometry(Part.LineSegment(Vector(12.371849, 13, 0), Vector(-20.628203, 13, 0)), False)
sketch9.addGeometry(Part.Circle(Vector(10.055363, 5.602566, 0), Vector(0, 0, 1), 0.7), False)
sketch9.addGeometry(Part.Circle(Vector(-18.144631, 5.602586, 0), Vector(0, 0, 1), 0.7), False)
sketch9.addConstraint(Sketcher.Constraint("Coincident", 0, 2, 1, 1))
sketch9.addConstraint(Sketcher.Constraint("Coincident", 1, 2, 2, 1))
sketch9.addConstraint(Sketcher.Constraint("Coincident", 2, 2, 3, 1))
sketch9.addConstraint(Sketcher.Constraint("Coincident", 3, 2, 4, 1))
sketch9.addConstraint(Sketcher.Constraint("Coincident", 4, 2, 5, 1))
sketch9.addConstraint(Sketcher.Constraint("Coincident", 5, 2, 6, 1))
sketch9.addConstraint(Sketcher.Constraint("Coincident", 6, 2, 7, 1))
sketch9.addConstraint(Sketcher.Constraint("Coincident", 7, 2, 0, 1))
sketch9.addConstraint(Sketcher.Constraint("Vertical", 0))
sketch9.addConstraint(Sketcher.Constraint("Horizontal", 1))
sketch9.addConstraint(Sketcher.Constraint("Vertical", 2))
sketch9.addConstraint(Sketcher.Constraint("Horizontal", 3))
sketch9.addConstraint(Sketcher.Constraint("Vertical", 4))
sketch9.addConstraint(Sketcher.Constraint("Horizontal", 5))
sketch9.addConstraint(Sketcher.Constraint("Vertical", 6))
sketch9.addConstraint(Sketcher.Constraint("Horizontal", 7))
sketch9.addConstraint(Sketcher.Constraint("Equal", 8, 9))
sketch9.addConstraint(Sketcher.Constraint("PointOnObject", 0, 2, -1))
sketch9.addConstraint(Sketcher.Constraint("PointOnObject", 4, 2, -1))
sketch9.addConstraint(Sketcher.Constraint("Diameter", 8, Q("1.4 mm")))
sketch9.addConstraint(Sketcher.Constraint("DistanceY", 0, 2, 0, 1, Q("13 mm")))
sketch9.addConstraint(Sketcher.Constraint("DistanceY", 2, 1, 2, 2, Q("12 mm")))
sketch9.addConstraint(Sketcher.Constraint("DistanceX", 1, 1, 1, 2, Q("4.999979 mm")))
sketch9.addConstraint(Sketcher.Constraint("DistanceX", 5, 1, 5, 2, Q("5.000038 mm")))
sketch9.addConstraint(Sketcher.Constraint("DistanceX", 7, 2, 7, 1, Q("33.000052 mm")))
sketch9.addConstraint(Sketcher.Constraint("DistanceX", 9, 3, -1, 1, Q("18.144631 mm")))
sketch9.addConstraint(Sketcher.Constraint("DistanceX", -1, 1, 3, 2, Q("7.371811 mm")))
sketch9.addConstraint(Sketcher.Constraint("DistanceX", -1, 1, 8, 3, Q("10.055363 mm")))
sketch9.addConstraint(Sketcher.Constraint("DistanceY", -1, 1, 8, 3, Q("5.602566 mm")))
sketch9.addConstraint(Sketcher.Constraint("DistanceY", -1, 1, 9, 3, Q("5.602586 mm")))
pad4 = body.newObject("PartDesign::Pad", "Pad003")
pad4.Profile = sketch9
pad4.Length = 1

doc.recompute()
